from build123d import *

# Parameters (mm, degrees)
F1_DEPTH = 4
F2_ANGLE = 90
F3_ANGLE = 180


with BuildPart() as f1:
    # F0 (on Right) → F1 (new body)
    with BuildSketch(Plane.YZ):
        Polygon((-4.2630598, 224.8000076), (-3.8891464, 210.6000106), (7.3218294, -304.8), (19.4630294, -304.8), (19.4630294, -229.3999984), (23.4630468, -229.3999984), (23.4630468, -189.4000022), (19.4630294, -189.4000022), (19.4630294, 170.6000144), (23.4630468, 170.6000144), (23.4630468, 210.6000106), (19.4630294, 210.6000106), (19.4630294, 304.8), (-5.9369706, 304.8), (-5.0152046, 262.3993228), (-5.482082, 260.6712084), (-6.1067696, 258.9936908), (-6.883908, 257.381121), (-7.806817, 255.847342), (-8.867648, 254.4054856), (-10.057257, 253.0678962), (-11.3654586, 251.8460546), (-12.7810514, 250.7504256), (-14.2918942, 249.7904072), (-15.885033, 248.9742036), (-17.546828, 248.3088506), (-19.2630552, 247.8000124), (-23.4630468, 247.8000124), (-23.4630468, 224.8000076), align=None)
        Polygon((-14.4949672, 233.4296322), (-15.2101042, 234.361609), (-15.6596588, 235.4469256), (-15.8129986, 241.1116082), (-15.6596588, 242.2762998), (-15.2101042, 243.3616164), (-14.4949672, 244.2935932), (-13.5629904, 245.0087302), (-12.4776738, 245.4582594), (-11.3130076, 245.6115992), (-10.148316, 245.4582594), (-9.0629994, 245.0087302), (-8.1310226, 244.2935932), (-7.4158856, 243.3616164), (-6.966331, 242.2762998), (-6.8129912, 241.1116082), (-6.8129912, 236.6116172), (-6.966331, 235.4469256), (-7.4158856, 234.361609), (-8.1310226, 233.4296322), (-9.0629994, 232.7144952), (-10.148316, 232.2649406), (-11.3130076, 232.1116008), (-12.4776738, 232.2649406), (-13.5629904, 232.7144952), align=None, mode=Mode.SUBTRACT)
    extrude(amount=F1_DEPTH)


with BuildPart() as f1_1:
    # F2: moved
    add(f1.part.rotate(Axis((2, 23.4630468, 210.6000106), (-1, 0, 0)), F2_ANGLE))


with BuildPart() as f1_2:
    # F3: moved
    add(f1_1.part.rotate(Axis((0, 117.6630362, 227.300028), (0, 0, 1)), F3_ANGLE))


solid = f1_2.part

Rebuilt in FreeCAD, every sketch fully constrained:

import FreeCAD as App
import Part
import Sketcher

V = App.Vector
Q = App.Units.Quantity


def add_polygon(sketch, points):
    """Adds a closed chain of lines whose ends are joined by coincident constraints."""
    first, n = sketch.GeometryCount, len(points)
    for a, b in zip(points, points[1:] + points[:1]):
        sketch.addGeometry(Part.LineSegment(App.Vector(*a, 0), App.Vector(*b, 0)), False)
    for i in range(n):
        sketch.addConstraint(Sketcher.Constraint("Coincident", first + i, 2, first + (i + 1) % n, 1))

doc = App.newDocument("Part")
params = doc.addObject("Spreadsheet::Sheet", "Params")
for row, (alias, value) in enumerate([
    ("sketch1_width", "25.4 mm"),
    ("sketch1_height", "75.400002 mm"),
    ("pad1_length", "4 mm"),
], start=1):
    params.set(f"A{row}", alias)
    params.set(f"B{row}", "=" + value)
    params.setAlias(f"B{row}", alias)

body = doc.addObject("PartDesign::Body", "Body")

sketch1 = body.newObject("Sketcher::SketchObject", "Sketch")
sketch1.AttachmentSupport = (doc.getObject("YZ_Plane"), [""])
sketch1.MapMode = "FlatFace"
add_polygon(sketch1, [(-4.26306, 224.800008), (-3.889146, 210.600011), (7.321829, -304.8), (19.463029, -304.8), (19.463029, -229.399998), (23.463047, -229.399998), (23.463047, -189.400002), (19.463029, -189.400002), (19.463029, 170.600014), (23.463047, 170.600014), (23.463047, 210.600011), (19.463029, 210.600011), (19.463029, 304.8), (-5.936971, 304.8), (-5.015205, 262.399323), (-5.482082, 260.671208), (-6.10677, 258.993691), (-6.883908, 257.381121), (-7.806817, 255.847342), (-8.867648, 254.405486), (-10.057257, 253.067896), (-11.365459, 251.846055), (-12.781051, 250.750426), (-14.291894, 249.790407), (-15.885033, 248.974204), (-17.546828, 248.308851), (-19.263055, 247.800012), (-23.463047, 247.800012), (-23.463047, 224.800008)])
add_polygon(sketch1, [(-13.56299, 232.714495), (-14.494967, 233.429632), (-15.210104, 234.361609), (-15.659659, 235.446926), (-15.812999, 241.111608), (-15.659659, 242.2763), (-15.210104, 243.361616), (-14.494967, 244.293593), (-13.56299, 245.00873), (-12.477674, 245.458259), (-11.313008, 245.611599), (-10.148316, 245.458259), (-9.062999, 245.00873), (-8.131023, 244.293593), (-7.415886, 243.361616), (-6.966331, 242.2763), (-6.812991, 241.111608), (-6.812991, 236.611617), (-6.966331, 235.446926), (-7.415886, 234.361609), (-8.131023, 233.429632), (-9.062999, 232.714495), (-10.148316, 232.264941), (-11.313008, 232.111601), (-12.477674, 232.264941)])
sketch1.addConstraint(Sketcher.Constraint("Horizontal", 2))
sketch1.addConstraint(Sketcher.Constraint("Vertical", 3))
sketch1.addConstraint(Sketcher.Constraint("Horizontal", 4))
sketch1.addConstraint(Sketcher.Constraint("Vertical", 5))
sketch1.addConstraint(Sketcher.Constraint("Horizontal", 6))
sketch1.addConstraint(Sketcher.Constraint("Vertical", 7))
sketch1.addConstraint(Sketcher.Constraint("Horizontal", 8))
sketch1.addConstraint(Sketcher.Constraint("Vertical", 9))
sketch1.addConstraint(Sketcher.Constraint("Horizontal", 10))
sketch1.addConstraint(Sketcher.Constraint("Vertical", 11))
sketch1.addConstraint(Sketcher.Constraint("Horizontal", 12))
sketch1.addConstraint(Sketcher.Constraint("Horizontal", 26))
sketch1.addConstraint(Sketcher.Constraint("Vertical", 27))
sketch1.addConstraint(Sketcher.Constraint("Horizontal", 28))
sketch1.addConstraint(Sketcher.Constraint("Vertical", 45))
sketch1.addConstraint(Sketcher.Constraint("DistanceX", 12, 2, 12, 1, Q("25.4 mm")))
sketch1.addConstraint(Sketcher.Constraint("DistanceY", 3, 1, 3, 2, Q("75.400002 mm")))
sketch1.addConstraint(Sketcher.Constraint("DistanceY", 1, 2, -1, 1, Q("304.8 mm")))
sketch1.addConstraint(Sketcher.Constraint("DistanceY", -1, 1, 11, 2, Q("304.8 mm")))
sketch1.addConstraint(Sketcher.Constraint("DistanceX", 12, 2, 7, 2, Q("25.4 mm")))
sketch1.addConstraint(Sketcher.Constraint("DistanceY", 30, 2, 32, 2, Q("6.749999 mm")))
sketch1.addConstraint(Sketcher.Constraint("DistanceY", 45, 2, 42, 2, Q("6.749999 mm")))
sketch1.addConstraint(Sketcher.Constraint("DistanceY", 47, 2, 44, 2, Q("6.749999 mm")))
sketch1.addConstraint(Sketcher.Constraint("DistanceX", 2, 1, 2, 2, Q("12.1412 mm")))
sketch1.addConstraint(Sketcher.Constraint("DistanceX", 32, 2, -1, 1, Q("15.812999 mm")))
sketch1.addConstraint(Sketcher.Constraint("DistanceX", 40, 2, -1, 1, Q("9.062999 mm")))
sketch1.addConstraint(Sketcher.Constraint("DistanceX", 49, 2, -1, 1, Q("9.062999 mm")))
sketch1.addConstraint(Sketcher.Constraint("DistanceX", 26, 2, 26, 1, Q("4.199992 mm")))
sketch1.addConstraint(Sketcher.Constraint("DistanceY", 11, 1, 11, 2, Q("94.199989 mm")))
sketch1.addConstraint(Sketcher.Constraint("DistanceY", 45, 2, 45, 1, Q("4.499991 mm")))
sketch1.addConstraint(Sketcher.Constraint("DistanceY", -1, 1, 33, 2, Q("242.2763 mm")))
sketch1.addConstraint(Sketcher.Constraint("DistanceY", -1, 1, 38, 2, Q("245.611599 mm")))
sketch1.addConstraint(Sketcher.Constraint("DistanceY", -1, 1, 43, 2, Q("242.2763 mm")))
sketch1.addConstraint(Sketcher.Constraint("DistanceY", -1, 1, 51, 2, Q("232.111601 mm")))
sketch1.addConstraint(Sketcher.Constraint("DistanceX", 1, 2, 6, 2, Q("12.1412 mm")))
sketch1.addConstraint(Sketcher.Constraint("DistanceX", 15, 2, 12, 2, Q("0.169799 mm")))
sketch1.addConstraint(Sketcher.Constraint("DistanceY", 16, 2, 13, 2, Q("5.018202 mm")))
sketch1.addConstraint(Sketcher.Constraint("DistanceX", 20, 2, 19, 2, Q("1.308202 mm")))
sketch1.addConstraint(Sketcher.Constraint("DistanceX", 27, 2, 0, 2, Q("19.5739 mm")))
sketch1.addConstraint(Sketcher.Constraint("DistanceY", 28, 2, 22, 2, Q("24.9904 mm")))
sketch1.addConstraint(Sketcher.Constraint("DistanceY", 27, 2, 30, 2, Q("9.561601 mm")))
sketch1.addConstraint(Sketcher.Constraint("Distance", 0, Q("14.204919 mm")))
sketch1.addConstraint(Sketcher.Constraint("Distance", 14, Q("1.790071 mm")))
sketch1.addConstraint(Sketcher.Constraint("Distance", 17, Q("1.790039 mm")))
sketch1.addConstraint(Sketcher.Constraint("Distance", 18, Q("1.790059 mm")))
sketch1.addConstraint(Sketcher.Constraint("Distance", 19, Q("1.79006 mm")))
sketch1.addConstraint(Sketcher.Constraint("Distance", 22, Q("1.790051 mm")))
sketch1.addConstraint(Sketcher.Constraint("Distance", 23, Q("1.79005 mm")))
sketch1.addConstraint(Sketcher.Constraint("Distance", 25, Q("1.79007 mm")))
sketch1.addConstraint(Sketcher.Constraint("Distance", 31, Q("1.174739 mm")))
sketch1.addConstraint(Sketcher.Constraint("Distance", 34, Q("1.174739 mm")))
sketch1.addConstraint(Sketcher.Constraint("Distance", 37, Q("1.174729 mm")))
sketch1.addConstraint(Sketcher.Constraint("Distance", 40, Q("1.174729 mm")))
sketch1.addConstraint(Sketcher.Constraint("Distance", 43, Q("1.174739 mm")))
sketch1.addConstraint(Sketcher.Constraint("Distance", 47, Q("1.174739 mm")))
sketch1.addConstraint(Sketcher.Constraint("Distance", 50, Q("1.174739 mm")))
sketch1.addConstraint(Sketcher.Constraint("Distance", 53, Q("1.174739 mm")))
sketch1.addConstraint(Sketcher.Constraint("DistanceX", 4, 1, 4, 2, Q("4.000017 mm")))
sketch1.addConstraint(Sketcher.Constraint("DistanceX", 8, 1, 8, 2, Q("4.000017 mm")))
sketch1.addConstraint(Sketcher.Constraint("DistanceX", 28, 1, 28, 2, Q("19.199987 mm")))
sketch1.addConstraint(Sketcher.Constraint("DistanceY", 5, 1, 5, 2, Q("39.999996 mm")))
sketch1.addConstraint(Sketcher.Constraint("DistanceY", 7, 1, 7, 2, Q("360.000017 mm")))
sketch1.addConstraint(Sketcher.Constraint("DistanceY", 27, 2, 27, 1, Q("23.000005 mm")))
sketch1.addConstraint(Sketcher.Constraint("DistanceY", -1, 1, 0, 2, Q("210.600011 mm")))
sketch1.addConstraint(Sketcher.Constraint("DistanceX", -1, 1, 1, 2, Q("7.321829 mm")))
sketch1.addConstraint(Sketcher.Constraint("DistanceY", -1, 1, 14, 2, Q("260.671208 mm")))
sketch1.addConstraint(Sketcher.Constraint("DistanceY", -1, 1, 15, 2, Q("258.993691 mm")))
sketch1.addConstraint(Sketcher.Constraint("DistanceY", -1, 1, 16, 2, Q("257.381121 mm")))
sketch1.addConstraint(Sketcher.Constraint("DistanceY", -1, 1, 17, 2, Q("255.847342 mm")))
sketch1.addConstraint(Sketcher.Constraint("DistanceX", 18, 2, -1, 1, Q("8.867648 mm")))
sketch1.addConstraint(Sketcher.Constraint("DistanceX", 20, 2, -1, 1, Q("11.365459 mm")))
sketch1.addConstraint(Sketcher.Constraint("DistanceX", 21, 2, -1, 1, Q("12.781051 mm")))
sketch1.addConstraint(Sketcher.Constraint("DistanceX", 24, 2, -1, 1, Q("17.546828 mm")))
sketch1.addConstraint(Sketcher.Constraint("DistanceY", -1, 1, 24, 2, Q("248.308851 mm")))
sketch1.addConstraint(Sketcher.Constraint("DistanceX", 31, 2, -1, 1, Q("15.659659 mm")))
sketch1.addConstraint(Sketcher.Constraint("DistanceX", 33, 2, -1, 1, Q("15.659659 mm")))
sketch1.addConstraint(Sketcher.Constraint("DistanceX", 36, 2, -1, 1, Q("13.56299 mm")))
sketch1.addConstraint(Sketcher.Constraint("DistanceY", -1, 1, 36, 2, Q("245.00873 mm")))
sketch1.addConstraint(Sketcher.Constraint("DistanceY", -1, 1, 37, 2, Q("245.458259 mm")))
sketch1.addConstraint(Sketcher.Constraint("DistanceY", -1, 1, 39, 2, Q("245.458259 mm")))
sketch1.addConstraint(Sketcher.Constraint("DistanceY", -1, 1, 40, 2, Q("245.00873 mm")))
sketch1.addConstraint(Sketcher.Constraint("DistanceX", 43, 2, -1, 1, Q("6.966331 mm")))
sketch1.addConstraint(Sketcher.Constraint("DistanceX", 44, 2, -1, 1, Q("6.812991 mm")))
sketch1.addConstraint(Sketcher.Constraint("DistanceY", -1, 1, 44, 2, Q("241.111608 mm")))
sketch1.addConstraint(Sketcher.Constraint("DistanceX", 46, 2, -1, 1, Q("6.966331 mm")))
sketch1.addConstraint(Sketcher.Constraint("DistanceY", -1, 1, 50, 2, Q("232.264941 mm")))
sketch1.addConstraint(Sketcher.Constraint("DistanceY", -1, 1, 52, 2, Q("232.264941 mm")))
sketch1.addConstraint(Sketcher.Constraint("DistanceX", 53, 2, -1, 1, Q("13.56299 mm")))
sketch1.addConstraint(Sketcher.Constraint("DistanceX", 13, 2, 0, 2, Q("1.126058 mm")))
sketch1.addConstraint(Sketcher.Constraint("DistanceX", 16, 2, 15, 2, Q("0.777138 mm")))
sketch1.addConstraint(Sketcher.Constraint("DistanceY", 20, 2, 19, 2, Q("1.221842 mm")))
sketch1.addConstraint(Sketcher.Constraint("DistanceY", 21, 2, 20, 2, Q("1.095629 mm")))
sketch1.addConstraint(Sketcher.Constraint("DistanceX", 23, 2, 22, 2, Q("1.593139 mm")))
sketch1.addConstraint(Sketcher.Constraint("DistanceX", 27, 2, 29, 2, Q("8.96808 mm")))
sketch1.addConstraint(Sketcher.Constraint("DistanceY", 29, 2, 25, 2, Q("14.37038 mm")))
sketch1.addConstraint(Sketcher.Constraint("DistanceX", 25, 2, 30, 2, Q("4.052951 mm")))
sketch1.addConstraint(Sketcher.Constraint("DistanceY", 32, 2, 34, 2, Q("2.250008 mm")))
sketch1.addConstraint(Sketcher.Constraint("DistanceX", 33, 2, 35, 2, Q("1.164692 mm")))
sketch1.addConstraint(Sketcher.Constraint("DistanceY", 35, 2, 23, 2, Q("4.68061 mm")))
sketch1.addConstraint(Sketcher.Constraint("DistanceX", 35, 2, 38, 2, Q("3.18196 mm")))
sketch1.addConstraint(Sketcher.Constraint("DistanceX", 37, 2, 41, 2, Q("4.346651 mm")))
sketch1.addConstraint(Sketcher.Constraint("DistanceY", 46, 2, 45, 2, Q("1.164692 mm")))
sketch1.addConstraint(Sketcher.Constraint("DistanceX", 48, 2, 46, 2, Q("1.164692 mm")))
sketch1.addConstraint(Sketcher.Constraint("DistanceY", 49, 2, 46, 2, Q("2.73243 mm")))
sketch1.addConstraint(Sketcher.Constraint("DistanceY", 50, 2, 48, 2, Q("1.164692 mm")))
sketch1.addConstraint(Sketcher.Constraint("DistanceX", 51, 2, 50, 2, Q("1.164692 mm")))
sketch1.addConstraint(Sketcher.Constraint("DistanceX", 30, 2, 52, 2, Q("2.73243 mm")))
sketch1.addConstraint(Sketcher.Constraint("Distance", 41, Q("1.174735 mm")))
sketch1.setExpression("Constraints[69]", "Params.sketch1_width")
sketch1.setExpression("Constraints[70]", "Params.sketch1_height")
pad1 = body.newObject("PartDesign::Pad", "Pad")
pad1.Profile = sketch1
pad1.setExpression("Length", "Params.pad1_length")
body2 = doc.addObject("PartDesign::Body", "Body001")
doc.recompute()

body.Placement = App.Placement(V(0, -187.136964, 234.063057), App.Rotation(V(-1, 0, 0), 90))
boolean = body2.newObject("PartDesign::Boolean", "Boolean")
boolean.Type = "Fuse"
boolean.addObjects([body])
body3 = doc.addObject("PartDesign::Body", "Body002")
doc.recompute()

body2.Placement = App.Placement(V(0, 235.326072, 0), App.Rotation(V(0, 0, 1), 180))
boolean2 = body3.newObject("PartDesign::Boolean", "Boolean001")
boolean2.Type = "Fuse"
boolean2.addObjects([body2])

doc.recompute()
